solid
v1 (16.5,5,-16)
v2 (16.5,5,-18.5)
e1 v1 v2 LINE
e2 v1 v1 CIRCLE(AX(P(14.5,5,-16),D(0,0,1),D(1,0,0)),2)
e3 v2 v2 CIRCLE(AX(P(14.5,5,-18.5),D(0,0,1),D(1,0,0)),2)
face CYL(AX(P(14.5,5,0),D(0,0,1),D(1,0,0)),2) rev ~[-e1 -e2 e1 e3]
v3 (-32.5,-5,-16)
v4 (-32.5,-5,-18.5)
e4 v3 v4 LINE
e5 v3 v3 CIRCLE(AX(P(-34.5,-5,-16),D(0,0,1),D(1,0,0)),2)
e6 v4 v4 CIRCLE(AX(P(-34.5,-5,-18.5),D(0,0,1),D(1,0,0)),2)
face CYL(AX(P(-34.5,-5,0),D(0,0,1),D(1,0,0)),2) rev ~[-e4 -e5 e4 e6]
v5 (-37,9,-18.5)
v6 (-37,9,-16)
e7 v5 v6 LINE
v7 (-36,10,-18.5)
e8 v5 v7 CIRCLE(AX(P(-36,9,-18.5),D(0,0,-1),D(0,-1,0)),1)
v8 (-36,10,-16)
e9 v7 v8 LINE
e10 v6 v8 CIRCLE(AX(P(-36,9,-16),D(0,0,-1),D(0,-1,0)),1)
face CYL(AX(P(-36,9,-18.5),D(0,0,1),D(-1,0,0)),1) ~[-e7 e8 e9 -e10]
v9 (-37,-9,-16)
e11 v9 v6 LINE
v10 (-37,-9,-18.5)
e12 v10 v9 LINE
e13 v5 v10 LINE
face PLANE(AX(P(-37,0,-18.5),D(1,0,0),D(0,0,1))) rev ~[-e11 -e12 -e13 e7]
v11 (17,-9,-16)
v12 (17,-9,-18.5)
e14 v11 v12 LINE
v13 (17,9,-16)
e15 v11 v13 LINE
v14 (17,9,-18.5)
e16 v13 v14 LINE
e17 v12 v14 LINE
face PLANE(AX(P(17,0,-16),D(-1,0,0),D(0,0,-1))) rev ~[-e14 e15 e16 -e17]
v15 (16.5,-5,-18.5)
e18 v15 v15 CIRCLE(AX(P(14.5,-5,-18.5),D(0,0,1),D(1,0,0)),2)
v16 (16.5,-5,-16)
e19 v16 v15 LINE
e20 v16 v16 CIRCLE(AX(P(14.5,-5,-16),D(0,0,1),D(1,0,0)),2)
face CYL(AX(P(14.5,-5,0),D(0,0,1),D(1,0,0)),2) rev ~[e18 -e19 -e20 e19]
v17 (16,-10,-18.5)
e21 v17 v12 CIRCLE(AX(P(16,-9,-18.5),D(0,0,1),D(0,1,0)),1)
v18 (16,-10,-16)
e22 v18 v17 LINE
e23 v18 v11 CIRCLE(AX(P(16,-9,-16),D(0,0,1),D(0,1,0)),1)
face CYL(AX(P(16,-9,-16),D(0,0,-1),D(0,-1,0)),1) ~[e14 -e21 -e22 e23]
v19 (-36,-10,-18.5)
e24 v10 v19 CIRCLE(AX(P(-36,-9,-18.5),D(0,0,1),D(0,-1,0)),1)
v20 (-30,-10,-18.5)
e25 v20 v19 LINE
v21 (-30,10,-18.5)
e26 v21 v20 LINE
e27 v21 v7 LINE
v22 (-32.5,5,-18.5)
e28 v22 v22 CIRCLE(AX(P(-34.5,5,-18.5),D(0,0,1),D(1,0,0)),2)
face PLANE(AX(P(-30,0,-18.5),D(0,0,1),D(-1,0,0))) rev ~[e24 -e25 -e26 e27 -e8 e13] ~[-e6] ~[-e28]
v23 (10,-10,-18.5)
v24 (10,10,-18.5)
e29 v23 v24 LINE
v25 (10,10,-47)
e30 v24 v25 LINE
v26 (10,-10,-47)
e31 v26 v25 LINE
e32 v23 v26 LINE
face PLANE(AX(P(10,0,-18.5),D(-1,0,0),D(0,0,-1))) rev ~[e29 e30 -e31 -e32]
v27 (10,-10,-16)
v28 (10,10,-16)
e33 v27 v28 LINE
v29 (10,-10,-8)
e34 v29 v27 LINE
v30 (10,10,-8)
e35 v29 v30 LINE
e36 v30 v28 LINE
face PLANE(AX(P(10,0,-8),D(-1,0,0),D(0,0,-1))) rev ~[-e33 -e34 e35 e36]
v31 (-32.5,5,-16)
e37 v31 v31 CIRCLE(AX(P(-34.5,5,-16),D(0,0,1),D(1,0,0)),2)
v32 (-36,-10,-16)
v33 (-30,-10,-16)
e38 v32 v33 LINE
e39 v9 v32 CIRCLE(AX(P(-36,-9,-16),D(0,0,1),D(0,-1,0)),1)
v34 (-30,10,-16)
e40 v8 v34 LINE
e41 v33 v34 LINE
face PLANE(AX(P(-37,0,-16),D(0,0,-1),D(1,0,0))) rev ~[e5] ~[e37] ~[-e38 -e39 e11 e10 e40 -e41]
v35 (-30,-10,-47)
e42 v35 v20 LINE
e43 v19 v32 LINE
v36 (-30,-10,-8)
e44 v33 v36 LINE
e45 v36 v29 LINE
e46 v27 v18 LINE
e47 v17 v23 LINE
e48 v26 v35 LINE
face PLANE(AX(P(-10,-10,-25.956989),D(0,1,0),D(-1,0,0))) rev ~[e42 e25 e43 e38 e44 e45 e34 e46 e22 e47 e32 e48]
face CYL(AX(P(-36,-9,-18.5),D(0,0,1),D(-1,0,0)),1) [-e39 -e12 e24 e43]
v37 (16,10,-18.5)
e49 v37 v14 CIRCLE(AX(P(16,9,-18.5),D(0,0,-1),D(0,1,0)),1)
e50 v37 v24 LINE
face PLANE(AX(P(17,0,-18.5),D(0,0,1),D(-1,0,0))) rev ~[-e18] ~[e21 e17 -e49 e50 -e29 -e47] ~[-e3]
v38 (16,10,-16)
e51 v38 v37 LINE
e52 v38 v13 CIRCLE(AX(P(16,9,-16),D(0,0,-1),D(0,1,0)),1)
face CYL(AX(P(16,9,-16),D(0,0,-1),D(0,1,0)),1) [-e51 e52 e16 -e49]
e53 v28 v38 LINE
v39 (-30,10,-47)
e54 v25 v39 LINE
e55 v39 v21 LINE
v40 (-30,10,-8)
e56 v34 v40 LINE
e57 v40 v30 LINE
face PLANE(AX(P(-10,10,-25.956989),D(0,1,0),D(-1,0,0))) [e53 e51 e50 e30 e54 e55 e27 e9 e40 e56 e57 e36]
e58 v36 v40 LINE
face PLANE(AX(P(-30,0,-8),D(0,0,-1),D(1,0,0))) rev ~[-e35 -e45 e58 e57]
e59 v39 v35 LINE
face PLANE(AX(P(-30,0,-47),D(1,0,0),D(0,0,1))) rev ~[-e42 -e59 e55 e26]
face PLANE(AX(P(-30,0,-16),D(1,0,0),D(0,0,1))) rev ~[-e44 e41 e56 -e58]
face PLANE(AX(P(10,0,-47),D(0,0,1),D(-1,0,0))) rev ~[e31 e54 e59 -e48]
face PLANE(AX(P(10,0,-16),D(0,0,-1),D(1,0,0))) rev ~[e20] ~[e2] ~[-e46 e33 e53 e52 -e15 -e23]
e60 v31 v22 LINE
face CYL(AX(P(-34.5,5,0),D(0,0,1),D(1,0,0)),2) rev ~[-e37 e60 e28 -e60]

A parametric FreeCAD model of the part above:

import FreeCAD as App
import Part
import Sketcher
from FreeCAD import Vector
Q = App.Units.Quantity


def edges_at(feature, points):
    """Names of the edges that pass closest to the given points."""
    edges = feature.Shape.Edges
    near = lambda p: min(range(len(edges)), key=lambda i: edges[i].distToShape(Part.Vertex(*p))[0])
    return sorted({f"Edge{near(p) + 1}" for p in points})


def add_polygon(sketch, points):
    """Adds a closed chain of lines whose ends are joined by coincident constraints."""
    first, n = sketch.GeometryCount, len(points)
    for a, b in zip(points, points[1:] + points[:1]):
        sketch.addGeometry(Part.LineSegment(App.Vector(*a, 0), App.Vector(*b, 0)), False)
    for i in range(n):
        sketch.addConstraint(Sketcher.Constraint("Coincident", first + i, 2, first + (i + 1) % n, 1))

doc = App.newDocument("Part")
body = doc.addObject("PartDesign::Body", "Body")

sketch1 = doc.addObject("Sketcher::SketchObject", "Sketch")
body.addObject(sketch1)
sketch1.AttachmentSupport = (doc.XZ_Plane, [""])
sketch1.MapMode = "FlatFace"
add_polygon(sketch1, [(-37, -16), (-37, -18.5), (-30, -18.5), (-30, -47), (10, -47), (10, -18.5), (17, -18.5), (17, -16), (10, -16), (10, -8), (-30, -8), (-30, -16)])
sketch1.addConstraint([
    Sketcher.Constraint("Vertical", 0),
    Sketcher.Constraint("Horizontal", 1),
    Sketcher.Constraint("Vertical", 2),
    Sketcher.Constraint("Horizontal", 3),
    Sketcher.Constraint("Vertical", 4),
    Sketcher.Constraint("Horizontal", 5),
    Sketcher.Constraint("Vertical", 6),
    Sketcher.Constraint("Horizontal", 7),
    Sketcher.Constraint("Vertical", 8),
    Sketcher.Constraint("Horizontal", 9),
    Sketcher.Constraint("Vertical", 10),
    Sketcher.Constraint("Horizontal", 11),
    Sketcher.Constraint("Horizontal", 1, 2, 4, 2),
    Sketcher.Constraint("Horizontal", 7, 2, 10, 2),
    Sketcher.Constraint("Vertical", 4, 2, 7, 2),
    Sketcher.Constraint("Vertical", 2, 2, 9, 2),
    Sketcher.Constraint("Equal", 1, 5),
    Sketcher.Constraint("DistanceX", 1, 1, 1, 2, Q("7 mm")),
    Sketcher.Constraint("DistanceX", 3, 1, 3, 2, Q("40 mm")),
    Sketcher.Constraint("DistanceY", 8, 1, 8, 2, Q("8 mm")),
    Sketcher.Constraint("DistanceY", 0, 2, 0, 1, Q("2.5 mm")),
    Sketcher.Constraint("DistanceY", 2, 2, 2, 1, Q("28.5 mm")),
    Sketcher.Constraint("DistanceX", 0, 2, -1, 1, Q("37 mm")),
    Sketcher.Constraint("DistanceY", 2, 2, -1, 1, Q("47 mm")),
])
pad1 = doc.addObject("PartDesign::Pad", "Pad")
body.addObject(pad1)
pad1.Profile = sketch1
pad1.Length = 20
pad1.Midplane = True

sketch2 = doc.addObject("Sketcher::SketchObject", "Sketch001")
body.addObject(sketch2)
sketch2.AttachmentSupport = (doc.XY_Plane, [""])
sketch2.MapMode = "FlatFace"
sketch2.addGeometry([
    Part.Circle(Vector(14.5, 5, 0), Vector(0, 0, 1), 2),
    Part.Circle(Vector(14.5, -5, 0), Vector(0, 0, 1), 2),
    Part.Circle(Vector(-34.5, 5, 0), Vector(0, 0, 1), 2),
    Part.Circle(Vector(-34.5, -5, 0), Vector(0, 0, 1), 2),
], False)
sketch2.addConstraint([
    Sketcher.Constraint("Equal", 0, 1),
    Sketcher.Constraint("Equal", 1, 2),
    Sketcher.Constraint("Equal", 2, 3),
    Sketcher.Constraint("Symmetric", 0, 3, 1, 3, -1),
    Sketcher.Constraint("Symmetric", 2, 3, 3, 3, -1),
    Sketcher.Constraint("Horizontal", 0, 3, 2, 3),
    Sketcher.Constraint("Diameter", 0, Q("4 mm")),
    Sketcher.Constraint("DistanceY", -1, 1, 0, 3, Q("5 mm")),
    Sketcher.Constraint("DistanceX", 2, 3, 0, 3, Q("49 mm")),
    Sketcher.Constraint("DistanceX", -1, 1, 0, 3, Q("14.5 mm")),
])
pocket1 = doc.addObject("PartDesign::Pocket", "Pocket")
body.addObject(pocket1)
pocket1.Profile = sketch2
pocket1.Type = "ThroughAll"
doc.recompute()

fillet = doc.addObject("PartDesign::Fillet", "Fillet")
body.addObject(fillet)
fillet.Base = (pocket1, edges_at(pocket1, [
    (17, -10, -17.25),
    (17, 10, -17.25),
    (-37, -10, -17.25),
    (-37, 10, -17.25),
]))
fillet.Radius = 1

doc.recompute()
